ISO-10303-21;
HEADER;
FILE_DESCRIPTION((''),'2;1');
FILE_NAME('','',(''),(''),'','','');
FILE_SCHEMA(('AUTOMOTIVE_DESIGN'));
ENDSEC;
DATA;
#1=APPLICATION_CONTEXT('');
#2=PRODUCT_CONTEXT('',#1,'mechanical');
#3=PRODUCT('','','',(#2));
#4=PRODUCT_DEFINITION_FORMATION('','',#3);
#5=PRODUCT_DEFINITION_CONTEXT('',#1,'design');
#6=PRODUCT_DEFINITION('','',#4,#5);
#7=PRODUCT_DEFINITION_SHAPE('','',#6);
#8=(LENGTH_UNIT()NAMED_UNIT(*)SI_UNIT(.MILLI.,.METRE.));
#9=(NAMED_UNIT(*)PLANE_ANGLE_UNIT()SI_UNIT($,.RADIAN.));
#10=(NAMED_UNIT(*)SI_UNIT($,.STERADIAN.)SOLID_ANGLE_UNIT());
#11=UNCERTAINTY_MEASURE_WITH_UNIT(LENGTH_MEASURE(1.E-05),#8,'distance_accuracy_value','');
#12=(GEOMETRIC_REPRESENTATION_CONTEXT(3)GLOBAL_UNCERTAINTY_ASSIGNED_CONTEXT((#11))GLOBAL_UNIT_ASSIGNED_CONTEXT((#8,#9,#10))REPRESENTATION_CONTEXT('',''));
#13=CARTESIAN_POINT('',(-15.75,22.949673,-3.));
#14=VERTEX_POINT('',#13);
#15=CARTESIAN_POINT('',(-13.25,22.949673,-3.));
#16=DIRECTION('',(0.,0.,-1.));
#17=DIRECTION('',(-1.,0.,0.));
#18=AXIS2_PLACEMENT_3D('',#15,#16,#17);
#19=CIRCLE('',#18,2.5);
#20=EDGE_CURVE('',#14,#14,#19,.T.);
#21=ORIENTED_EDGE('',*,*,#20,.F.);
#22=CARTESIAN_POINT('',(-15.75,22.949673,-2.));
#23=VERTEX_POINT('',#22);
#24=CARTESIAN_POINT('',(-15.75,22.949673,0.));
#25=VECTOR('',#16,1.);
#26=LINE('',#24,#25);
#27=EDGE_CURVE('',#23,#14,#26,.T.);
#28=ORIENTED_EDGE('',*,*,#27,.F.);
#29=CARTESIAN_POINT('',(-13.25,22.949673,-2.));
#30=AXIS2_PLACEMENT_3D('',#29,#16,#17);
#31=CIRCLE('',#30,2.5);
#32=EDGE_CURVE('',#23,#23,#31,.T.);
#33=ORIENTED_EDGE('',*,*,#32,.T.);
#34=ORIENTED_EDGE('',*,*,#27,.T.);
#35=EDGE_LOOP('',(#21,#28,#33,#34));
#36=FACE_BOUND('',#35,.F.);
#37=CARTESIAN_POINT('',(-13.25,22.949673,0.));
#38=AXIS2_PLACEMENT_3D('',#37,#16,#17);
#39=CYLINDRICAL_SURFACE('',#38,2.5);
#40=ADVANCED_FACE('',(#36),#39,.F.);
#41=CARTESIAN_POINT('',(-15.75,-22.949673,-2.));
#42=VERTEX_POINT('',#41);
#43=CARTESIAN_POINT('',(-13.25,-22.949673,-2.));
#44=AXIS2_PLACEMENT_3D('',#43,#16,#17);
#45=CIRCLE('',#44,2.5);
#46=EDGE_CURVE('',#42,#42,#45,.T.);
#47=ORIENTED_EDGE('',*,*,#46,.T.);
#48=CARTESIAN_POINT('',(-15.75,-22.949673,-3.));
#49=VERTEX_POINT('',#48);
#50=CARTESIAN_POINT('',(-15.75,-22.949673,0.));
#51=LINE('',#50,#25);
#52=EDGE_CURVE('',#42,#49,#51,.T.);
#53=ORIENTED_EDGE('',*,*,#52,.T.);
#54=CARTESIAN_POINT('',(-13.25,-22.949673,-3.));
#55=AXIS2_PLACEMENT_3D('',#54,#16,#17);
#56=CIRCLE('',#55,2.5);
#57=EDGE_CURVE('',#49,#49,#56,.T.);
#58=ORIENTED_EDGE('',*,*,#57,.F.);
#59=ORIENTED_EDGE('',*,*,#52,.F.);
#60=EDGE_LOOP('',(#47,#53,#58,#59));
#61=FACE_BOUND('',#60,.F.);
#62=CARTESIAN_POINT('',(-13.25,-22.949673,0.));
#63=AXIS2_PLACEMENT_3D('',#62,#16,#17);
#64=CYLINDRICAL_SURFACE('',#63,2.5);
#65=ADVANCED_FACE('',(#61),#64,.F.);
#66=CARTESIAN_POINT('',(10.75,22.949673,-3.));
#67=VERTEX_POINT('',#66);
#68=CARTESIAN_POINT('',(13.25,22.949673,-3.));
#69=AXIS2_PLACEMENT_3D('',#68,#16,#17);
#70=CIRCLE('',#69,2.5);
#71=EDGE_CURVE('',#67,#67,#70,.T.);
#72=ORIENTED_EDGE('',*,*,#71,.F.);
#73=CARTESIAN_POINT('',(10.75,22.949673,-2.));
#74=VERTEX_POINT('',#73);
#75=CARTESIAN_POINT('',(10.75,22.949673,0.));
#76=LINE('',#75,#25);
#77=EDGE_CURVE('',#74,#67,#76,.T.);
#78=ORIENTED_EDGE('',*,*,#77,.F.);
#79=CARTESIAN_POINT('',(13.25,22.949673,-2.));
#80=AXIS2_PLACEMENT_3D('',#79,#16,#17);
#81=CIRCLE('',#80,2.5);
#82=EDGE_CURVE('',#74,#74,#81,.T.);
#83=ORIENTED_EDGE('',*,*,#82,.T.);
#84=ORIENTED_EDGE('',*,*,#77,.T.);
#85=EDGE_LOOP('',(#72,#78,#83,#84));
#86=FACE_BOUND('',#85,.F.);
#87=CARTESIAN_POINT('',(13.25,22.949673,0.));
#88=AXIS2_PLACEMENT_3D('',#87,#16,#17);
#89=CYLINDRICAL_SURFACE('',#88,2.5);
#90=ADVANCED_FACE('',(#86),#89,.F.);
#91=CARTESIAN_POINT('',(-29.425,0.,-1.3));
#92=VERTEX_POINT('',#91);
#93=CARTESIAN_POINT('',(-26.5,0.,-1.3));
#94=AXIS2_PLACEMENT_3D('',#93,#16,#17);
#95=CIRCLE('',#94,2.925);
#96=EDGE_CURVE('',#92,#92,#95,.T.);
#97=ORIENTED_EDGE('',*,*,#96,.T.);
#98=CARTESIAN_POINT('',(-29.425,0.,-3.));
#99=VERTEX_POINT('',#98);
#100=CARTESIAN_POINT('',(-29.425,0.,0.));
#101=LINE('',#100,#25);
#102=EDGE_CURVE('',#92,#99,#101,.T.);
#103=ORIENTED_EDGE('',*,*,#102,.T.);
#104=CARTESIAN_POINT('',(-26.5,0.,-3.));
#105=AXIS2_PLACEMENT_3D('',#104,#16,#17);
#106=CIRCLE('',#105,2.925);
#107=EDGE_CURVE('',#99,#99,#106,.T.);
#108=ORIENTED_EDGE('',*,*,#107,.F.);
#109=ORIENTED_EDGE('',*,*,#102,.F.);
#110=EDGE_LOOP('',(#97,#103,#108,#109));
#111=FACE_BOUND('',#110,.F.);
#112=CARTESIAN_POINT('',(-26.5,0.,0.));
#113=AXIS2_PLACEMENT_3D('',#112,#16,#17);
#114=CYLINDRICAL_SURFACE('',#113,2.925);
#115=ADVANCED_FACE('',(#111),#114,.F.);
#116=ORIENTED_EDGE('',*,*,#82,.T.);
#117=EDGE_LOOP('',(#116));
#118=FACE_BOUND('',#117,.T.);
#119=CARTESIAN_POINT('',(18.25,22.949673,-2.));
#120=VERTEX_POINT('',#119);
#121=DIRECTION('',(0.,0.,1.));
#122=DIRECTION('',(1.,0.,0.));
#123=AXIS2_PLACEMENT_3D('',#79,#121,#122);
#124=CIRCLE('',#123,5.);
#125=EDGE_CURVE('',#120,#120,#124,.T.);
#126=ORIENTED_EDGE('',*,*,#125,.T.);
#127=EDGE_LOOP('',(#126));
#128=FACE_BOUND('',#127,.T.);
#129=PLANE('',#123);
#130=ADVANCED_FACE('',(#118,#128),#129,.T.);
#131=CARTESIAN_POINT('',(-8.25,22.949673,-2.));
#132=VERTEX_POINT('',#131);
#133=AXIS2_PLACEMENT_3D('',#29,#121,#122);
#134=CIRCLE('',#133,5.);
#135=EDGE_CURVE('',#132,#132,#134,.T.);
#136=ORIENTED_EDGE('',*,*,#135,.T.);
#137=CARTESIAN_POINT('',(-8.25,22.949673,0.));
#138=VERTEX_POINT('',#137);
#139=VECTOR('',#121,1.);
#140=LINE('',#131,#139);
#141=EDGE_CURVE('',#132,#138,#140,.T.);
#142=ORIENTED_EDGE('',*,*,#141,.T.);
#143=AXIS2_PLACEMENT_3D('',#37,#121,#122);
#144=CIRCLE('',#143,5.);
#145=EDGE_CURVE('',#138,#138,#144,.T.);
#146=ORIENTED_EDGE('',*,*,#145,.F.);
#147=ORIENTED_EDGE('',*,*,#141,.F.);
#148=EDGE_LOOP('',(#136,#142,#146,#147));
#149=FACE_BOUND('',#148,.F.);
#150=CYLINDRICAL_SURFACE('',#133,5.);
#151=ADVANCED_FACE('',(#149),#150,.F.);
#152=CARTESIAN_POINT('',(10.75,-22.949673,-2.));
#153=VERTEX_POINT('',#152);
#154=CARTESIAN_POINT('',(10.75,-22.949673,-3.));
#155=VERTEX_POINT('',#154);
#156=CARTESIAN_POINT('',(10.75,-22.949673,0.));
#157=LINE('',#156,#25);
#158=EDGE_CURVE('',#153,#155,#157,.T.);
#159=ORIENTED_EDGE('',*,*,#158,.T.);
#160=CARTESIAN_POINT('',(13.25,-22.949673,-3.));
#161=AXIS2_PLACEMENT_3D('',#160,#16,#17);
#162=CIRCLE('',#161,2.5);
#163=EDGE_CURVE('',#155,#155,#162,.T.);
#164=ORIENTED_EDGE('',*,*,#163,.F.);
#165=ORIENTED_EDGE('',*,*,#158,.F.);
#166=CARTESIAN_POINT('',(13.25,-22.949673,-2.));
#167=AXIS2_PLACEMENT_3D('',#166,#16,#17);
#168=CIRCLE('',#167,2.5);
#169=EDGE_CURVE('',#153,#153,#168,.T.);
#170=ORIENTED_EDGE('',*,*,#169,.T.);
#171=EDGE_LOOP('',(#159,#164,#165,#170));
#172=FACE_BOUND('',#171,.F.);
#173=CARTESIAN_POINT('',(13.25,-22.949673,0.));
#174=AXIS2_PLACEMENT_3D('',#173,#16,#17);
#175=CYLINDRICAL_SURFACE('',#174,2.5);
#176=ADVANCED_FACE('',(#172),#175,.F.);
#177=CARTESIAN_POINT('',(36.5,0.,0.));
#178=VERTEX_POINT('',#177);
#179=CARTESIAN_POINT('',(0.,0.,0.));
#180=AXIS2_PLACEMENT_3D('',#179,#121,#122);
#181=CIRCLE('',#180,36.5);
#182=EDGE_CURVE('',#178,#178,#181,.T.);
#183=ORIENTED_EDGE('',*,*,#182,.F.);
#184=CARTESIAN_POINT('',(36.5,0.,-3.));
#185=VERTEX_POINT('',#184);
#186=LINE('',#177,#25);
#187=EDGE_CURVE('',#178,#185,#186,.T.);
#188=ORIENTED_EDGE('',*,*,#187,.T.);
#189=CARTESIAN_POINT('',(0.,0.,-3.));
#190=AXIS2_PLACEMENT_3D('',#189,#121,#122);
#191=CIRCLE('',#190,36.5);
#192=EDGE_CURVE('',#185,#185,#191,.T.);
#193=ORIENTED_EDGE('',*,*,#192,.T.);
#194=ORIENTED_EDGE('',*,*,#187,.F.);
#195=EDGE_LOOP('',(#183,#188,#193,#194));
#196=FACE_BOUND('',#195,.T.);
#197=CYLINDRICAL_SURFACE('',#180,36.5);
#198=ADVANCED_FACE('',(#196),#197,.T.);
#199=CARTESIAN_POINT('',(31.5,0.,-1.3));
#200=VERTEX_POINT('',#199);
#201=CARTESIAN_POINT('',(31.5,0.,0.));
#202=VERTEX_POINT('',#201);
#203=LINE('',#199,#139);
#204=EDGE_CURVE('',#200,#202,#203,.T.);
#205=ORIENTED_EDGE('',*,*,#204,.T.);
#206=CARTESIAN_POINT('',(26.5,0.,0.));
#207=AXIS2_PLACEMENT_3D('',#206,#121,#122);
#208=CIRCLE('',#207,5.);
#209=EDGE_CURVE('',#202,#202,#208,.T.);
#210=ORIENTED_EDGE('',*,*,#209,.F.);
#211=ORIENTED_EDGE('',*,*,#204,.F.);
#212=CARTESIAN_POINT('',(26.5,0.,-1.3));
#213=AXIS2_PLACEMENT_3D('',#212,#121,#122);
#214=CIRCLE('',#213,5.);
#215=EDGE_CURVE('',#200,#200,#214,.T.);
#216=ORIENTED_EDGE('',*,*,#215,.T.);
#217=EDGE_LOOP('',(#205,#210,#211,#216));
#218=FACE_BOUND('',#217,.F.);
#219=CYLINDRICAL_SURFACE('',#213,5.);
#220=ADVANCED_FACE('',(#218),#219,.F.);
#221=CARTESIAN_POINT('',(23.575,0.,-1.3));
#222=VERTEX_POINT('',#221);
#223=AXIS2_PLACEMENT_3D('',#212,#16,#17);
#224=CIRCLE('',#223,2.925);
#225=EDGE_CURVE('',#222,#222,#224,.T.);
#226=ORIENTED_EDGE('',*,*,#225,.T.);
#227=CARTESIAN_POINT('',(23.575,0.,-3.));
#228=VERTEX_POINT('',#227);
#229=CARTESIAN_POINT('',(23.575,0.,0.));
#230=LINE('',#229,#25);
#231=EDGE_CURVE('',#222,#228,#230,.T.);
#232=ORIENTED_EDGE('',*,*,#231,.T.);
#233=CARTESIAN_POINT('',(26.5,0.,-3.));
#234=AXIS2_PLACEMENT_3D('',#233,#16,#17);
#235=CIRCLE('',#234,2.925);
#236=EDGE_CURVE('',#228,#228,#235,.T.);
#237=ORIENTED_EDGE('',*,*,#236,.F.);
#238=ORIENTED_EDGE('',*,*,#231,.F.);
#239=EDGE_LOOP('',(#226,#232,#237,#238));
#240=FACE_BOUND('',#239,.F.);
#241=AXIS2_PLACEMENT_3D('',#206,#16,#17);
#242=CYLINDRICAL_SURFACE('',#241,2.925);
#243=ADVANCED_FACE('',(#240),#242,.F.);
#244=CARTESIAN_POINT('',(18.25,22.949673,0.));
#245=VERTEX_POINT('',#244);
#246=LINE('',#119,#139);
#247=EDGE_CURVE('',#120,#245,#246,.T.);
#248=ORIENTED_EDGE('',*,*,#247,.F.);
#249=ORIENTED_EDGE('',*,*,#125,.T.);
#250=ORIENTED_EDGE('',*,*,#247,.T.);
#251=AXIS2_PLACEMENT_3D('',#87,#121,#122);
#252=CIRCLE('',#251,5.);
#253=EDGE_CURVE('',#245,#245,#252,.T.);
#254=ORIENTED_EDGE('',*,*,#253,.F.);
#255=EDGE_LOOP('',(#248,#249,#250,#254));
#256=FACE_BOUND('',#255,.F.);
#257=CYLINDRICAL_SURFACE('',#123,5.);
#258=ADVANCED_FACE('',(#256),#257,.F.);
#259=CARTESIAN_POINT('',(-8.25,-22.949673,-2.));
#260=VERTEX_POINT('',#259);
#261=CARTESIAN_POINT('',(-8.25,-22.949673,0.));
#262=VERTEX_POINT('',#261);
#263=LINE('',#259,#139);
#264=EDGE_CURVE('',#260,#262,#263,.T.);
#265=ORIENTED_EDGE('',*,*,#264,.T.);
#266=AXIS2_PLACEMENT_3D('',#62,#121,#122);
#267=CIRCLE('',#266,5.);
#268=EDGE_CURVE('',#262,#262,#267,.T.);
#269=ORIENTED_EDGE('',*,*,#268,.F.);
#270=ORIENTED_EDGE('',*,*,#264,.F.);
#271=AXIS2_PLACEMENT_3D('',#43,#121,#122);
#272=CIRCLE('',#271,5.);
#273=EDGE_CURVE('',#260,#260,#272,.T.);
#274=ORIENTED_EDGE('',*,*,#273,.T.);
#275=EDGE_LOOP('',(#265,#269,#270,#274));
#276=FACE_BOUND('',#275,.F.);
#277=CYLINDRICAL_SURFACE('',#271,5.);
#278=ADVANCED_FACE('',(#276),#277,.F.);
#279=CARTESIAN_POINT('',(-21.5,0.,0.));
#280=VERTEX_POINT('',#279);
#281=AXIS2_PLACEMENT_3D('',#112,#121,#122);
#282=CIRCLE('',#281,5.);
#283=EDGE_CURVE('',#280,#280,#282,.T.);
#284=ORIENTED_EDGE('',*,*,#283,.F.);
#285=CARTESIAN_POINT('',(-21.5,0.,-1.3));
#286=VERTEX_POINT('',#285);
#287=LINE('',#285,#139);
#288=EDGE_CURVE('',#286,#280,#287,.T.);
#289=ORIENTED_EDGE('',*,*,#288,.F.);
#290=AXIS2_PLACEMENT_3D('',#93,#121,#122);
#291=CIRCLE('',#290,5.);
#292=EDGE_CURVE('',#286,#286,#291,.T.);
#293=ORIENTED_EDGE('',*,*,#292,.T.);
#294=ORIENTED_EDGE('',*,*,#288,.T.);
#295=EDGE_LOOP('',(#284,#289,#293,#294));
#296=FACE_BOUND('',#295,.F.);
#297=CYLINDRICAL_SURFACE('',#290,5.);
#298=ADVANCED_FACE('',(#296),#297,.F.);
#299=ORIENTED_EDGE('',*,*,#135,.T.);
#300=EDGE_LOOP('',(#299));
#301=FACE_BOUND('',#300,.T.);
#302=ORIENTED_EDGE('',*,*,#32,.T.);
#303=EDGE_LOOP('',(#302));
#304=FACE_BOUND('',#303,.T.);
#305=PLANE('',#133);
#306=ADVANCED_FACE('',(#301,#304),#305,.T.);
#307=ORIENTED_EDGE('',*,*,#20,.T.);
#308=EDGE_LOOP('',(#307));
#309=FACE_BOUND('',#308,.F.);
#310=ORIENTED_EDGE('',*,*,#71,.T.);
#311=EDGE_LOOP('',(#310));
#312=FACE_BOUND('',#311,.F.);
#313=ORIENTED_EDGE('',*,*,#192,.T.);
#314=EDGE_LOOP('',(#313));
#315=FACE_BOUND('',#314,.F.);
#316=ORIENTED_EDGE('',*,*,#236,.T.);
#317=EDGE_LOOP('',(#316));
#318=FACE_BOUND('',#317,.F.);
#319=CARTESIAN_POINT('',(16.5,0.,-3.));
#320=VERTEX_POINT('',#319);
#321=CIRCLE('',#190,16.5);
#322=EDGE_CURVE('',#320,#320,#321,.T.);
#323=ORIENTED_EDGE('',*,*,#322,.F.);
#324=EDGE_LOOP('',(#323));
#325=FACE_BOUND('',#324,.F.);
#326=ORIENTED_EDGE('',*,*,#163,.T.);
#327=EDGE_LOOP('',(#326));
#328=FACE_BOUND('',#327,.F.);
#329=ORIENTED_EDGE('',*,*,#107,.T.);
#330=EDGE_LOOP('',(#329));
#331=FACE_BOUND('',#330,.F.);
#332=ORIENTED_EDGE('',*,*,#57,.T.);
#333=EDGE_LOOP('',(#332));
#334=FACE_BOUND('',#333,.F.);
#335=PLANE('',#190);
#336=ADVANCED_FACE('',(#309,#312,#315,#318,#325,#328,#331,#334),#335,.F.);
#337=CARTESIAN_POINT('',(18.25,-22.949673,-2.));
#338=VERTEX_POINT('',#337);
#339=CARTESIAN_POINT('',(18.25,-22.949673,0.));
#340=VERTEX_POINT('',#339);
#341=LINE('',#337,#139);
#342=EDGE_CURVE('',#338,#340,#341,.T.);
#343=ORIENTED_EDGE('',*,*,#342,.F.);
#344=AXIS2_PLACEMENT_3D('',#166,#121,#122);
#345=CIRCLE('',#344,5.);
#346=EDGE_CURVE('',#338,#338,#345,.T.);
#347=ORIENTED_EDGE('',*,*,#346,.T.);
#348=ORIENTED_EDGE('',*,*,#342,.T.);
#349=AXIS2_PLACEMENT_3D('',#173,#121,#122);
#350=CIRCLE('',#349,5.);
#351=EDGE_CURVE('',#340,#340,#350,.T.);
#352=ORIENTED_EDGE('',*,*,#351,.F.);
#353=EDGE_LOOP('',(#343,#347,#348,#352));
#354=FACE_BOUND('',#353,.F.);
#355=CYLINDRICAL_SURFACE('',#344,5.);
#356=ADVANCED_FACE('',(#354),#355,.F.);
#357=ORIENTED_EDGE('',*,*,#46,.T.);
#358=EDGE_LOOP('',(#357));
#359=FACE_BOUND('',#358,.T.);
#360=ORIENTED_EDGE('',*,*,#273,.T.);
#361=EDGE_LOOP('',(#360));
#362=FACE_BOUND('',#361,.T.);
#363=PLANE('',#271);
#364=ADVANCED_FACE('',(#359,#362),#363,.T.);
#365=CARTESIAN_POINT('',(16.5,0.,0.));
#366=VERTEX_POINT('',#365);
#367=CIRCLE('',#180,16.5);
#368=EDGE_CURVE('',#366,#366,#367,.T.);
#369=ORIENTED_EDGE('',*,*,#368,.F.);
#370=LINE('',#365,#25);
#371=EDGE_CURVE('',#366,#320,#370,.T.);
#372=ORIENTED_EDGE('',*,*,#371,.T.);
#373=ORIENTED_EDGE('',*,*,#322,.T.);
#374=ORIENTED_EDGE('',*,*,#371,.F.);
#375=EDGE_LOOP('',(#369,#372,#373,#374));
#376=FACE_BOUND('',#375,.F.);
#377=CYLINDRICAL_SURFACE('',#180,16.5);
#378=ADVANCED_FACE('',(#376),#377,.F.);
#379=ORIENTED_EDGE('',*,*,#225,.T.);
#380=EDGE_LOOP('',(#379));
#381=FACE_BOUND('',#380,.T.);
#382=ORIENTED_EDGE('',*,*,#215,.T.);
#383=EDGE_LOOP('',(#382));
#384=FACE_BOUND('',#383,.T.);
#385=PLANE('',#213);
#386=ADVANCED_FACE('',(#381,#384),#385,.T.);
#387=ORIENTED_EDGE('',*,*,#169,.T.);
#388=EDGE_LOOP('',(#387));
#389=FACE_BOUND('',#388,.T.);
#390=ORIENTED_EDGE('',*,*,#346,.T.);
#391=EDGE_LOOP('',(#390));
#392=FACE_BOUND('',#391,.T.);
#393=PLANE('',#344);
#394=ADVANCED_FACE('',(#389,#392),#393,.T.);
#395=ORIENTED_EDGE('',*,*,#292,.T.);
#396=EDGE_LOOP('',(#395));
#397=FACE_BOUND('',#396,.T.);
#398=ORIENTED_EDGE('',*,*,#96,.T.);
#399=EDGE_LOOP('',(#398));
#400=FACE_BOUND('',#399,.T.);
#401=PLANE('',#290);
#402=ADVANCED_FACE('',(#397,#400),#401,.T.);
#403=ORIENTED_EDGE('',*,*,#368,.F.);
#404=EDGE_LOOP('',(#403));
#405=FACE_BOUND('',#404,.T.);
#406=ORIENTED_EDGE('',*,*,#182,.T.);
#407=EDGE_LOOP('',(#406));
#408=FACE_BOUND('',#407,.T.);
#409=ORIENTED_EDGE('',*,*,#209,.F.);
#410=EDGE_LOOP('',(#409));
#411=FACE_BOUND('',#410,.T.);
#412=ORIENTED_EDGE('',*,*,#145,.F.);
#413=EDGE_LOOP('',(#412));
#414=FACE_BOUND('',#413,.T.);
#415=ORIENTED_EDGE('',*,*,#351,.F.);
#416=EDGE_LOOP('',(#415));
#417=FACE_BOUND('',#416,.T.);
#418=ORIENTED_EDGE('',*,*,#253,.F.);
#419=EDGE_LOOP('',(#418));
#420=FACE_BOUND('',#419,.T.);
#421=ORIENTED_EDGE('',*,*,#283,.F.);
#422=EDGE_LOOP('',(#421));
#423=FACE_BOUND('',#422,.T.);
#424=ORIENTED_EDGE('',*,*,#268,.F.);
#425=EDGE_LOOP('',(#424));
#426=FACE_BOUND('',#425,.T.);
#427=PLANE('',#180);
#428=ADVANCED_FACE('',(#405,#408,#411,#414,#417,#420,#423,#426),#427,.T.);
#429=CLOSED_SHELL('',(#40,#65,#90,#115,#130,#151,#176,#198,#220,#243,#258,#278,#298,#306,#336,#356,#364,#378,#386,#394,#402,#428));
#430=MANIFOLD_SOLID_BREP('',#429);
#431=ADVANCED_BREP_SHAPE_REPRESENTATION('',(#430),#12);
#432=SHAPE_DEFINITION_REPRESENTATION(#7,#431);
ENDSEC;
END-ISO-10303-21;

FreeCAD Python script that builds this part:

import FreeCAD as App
import Part
import Sketcher

V = App.Vector
Q = App.Units.Quantity

doc = App.newDocument("Part")
body = doc.addObject("PartDesign::Body", "Body")

# Sketch on XY plane
sketch1 = body.newObject("Sketcher::SketchObject", "Sketch")
sketch1.AttachmentSupport = (doc.getObject("XY_Plane"), [""])
sketch1.MapMode = "FlatFace"
sketch1.addGeometry([
    Part.Circle(V(0, 0, 0), V(0, 0, 1), 36),
    Part.Circle(V(0, 0, 0), V(0, 0, 1), 16),
], False)
sketch1.addConstraint([
    Sketcher.Constraint("Coincident", 0, 3, -1, 1),
    Sketcher.Constraint("Coincident", 1, 3, -1, 1),
    Sketcher.Constraint("Diameter", 0, Q("73 mm")),
    Sketcher.Constraint("Diameter", 1, Q("33 mm")),
])
pad1 = body.newObject("PartDesign::Pad", "Pad")
pad1.Profile = sketch1
pad1.Length = 3
pad1.Reversed = True

# Sketch on XY plane
sketch2 = body.newObject("Sketcher::SketchObject", "Sketch001")
sketch2.AttachmentSupport = (doc.getObject("XY_Plane"), [""])
sketch2.MapMode = "FlatFace"
sketch2.addGeometry([
    Part.Circle(V(-13.2, 22.9, 0), V(0, 0, 1), 2.5),
    Part.Circle(V(13.2, 22.9, 0), V(0, 0, 1), 2.5),
    Part.Circle(V(-13.2, -22.9, 0), V(0, 0, 1), 2.5),
    Part.Circle(V(13.2, -22.9, 0), V(0, 0, 1), 2.5),
], False)
sketch2.addConstraint([
    Sketcher.Constraint("Equal", 0, 1),
    Sketcher.Constraint("Equal", 1, 2),
    Sketcher.Constraint("Equal", 2, 3),
    Sketcher.Constraint("Symmetric", 1, 3, 2, 3, -1, 1),
    Sketcher.Constraint("Symmetric", 0, 3, 3, 3, -1, 1),
    Sketcher.Constraint("Symmetric", 0, 3, 1, 3, -2),
    Sketcher.Constraint("Diameter", 0, Q("5 mm")),
    Sketcher.Constraint("DistanceX", 0, 3, 1, 3, Q("26.5 mm")),
    Sketcher.Constraint("DistanceY", -1, 1, 0, 3, Q("22.949673 mm")),
])
doc.recompute()
hole = body.newObject("PartDesign::Hole", "Hole")
hole.Profile = sketch2
hole.ThreadType = "None"
hole.Diameter = 5
hole.DepthType = "ThroughAll"
hole.HoleCutType = "Counterbore"
hole.HoleCutDiameter = 10
hole.HoleCutDepth = 2

# Sketch on XY plane
sketch3 = body.newObject("Sketcher::SketchObject", "Sketch002")
sketch3.AttachmentSupport = (doc.getObject("XY_Plane"), [""])
sketch3.MapMode = "FlatFace"
sketch3.addGeometry([
    Part.Circle(V(-26.5, 0, 0), V(0, 0, 1), 2.9),
    Part.Circle(V(26.5, 0, 0), V(0, 0, 1), 2.9),
], False)
sketch3.addConstraint([
    Sketcher.Constraint("Equal", 0, 1),
    Sketcher.Constraint("Symmetric", 0, 3, 1, 3, -1, 1),
    Sketcher.Constraint("PointOnObject", 0, 3, -1),
    Sketcher.Constraint("Diameter", 0, Q("5.85 mm")),
    Sketcher.Constraint("DistanceX", 0, 3, 1, 3, Q("53 mm")),
])
doc.recompute()
hole2 = body.newObject("PartDesign::Hole", "Hole001")
hole2.Profile = sketch3
hole2.ThreadType = "None"
hole2.Diameter = 5.85
hole2.DepthType = "ThroughAll"
hole2.HoleCutType = "Counterbore"
hole2.HoleCutDiameter = 10
hole2.HoleCutDepth = 1.3

doc.recompute()
